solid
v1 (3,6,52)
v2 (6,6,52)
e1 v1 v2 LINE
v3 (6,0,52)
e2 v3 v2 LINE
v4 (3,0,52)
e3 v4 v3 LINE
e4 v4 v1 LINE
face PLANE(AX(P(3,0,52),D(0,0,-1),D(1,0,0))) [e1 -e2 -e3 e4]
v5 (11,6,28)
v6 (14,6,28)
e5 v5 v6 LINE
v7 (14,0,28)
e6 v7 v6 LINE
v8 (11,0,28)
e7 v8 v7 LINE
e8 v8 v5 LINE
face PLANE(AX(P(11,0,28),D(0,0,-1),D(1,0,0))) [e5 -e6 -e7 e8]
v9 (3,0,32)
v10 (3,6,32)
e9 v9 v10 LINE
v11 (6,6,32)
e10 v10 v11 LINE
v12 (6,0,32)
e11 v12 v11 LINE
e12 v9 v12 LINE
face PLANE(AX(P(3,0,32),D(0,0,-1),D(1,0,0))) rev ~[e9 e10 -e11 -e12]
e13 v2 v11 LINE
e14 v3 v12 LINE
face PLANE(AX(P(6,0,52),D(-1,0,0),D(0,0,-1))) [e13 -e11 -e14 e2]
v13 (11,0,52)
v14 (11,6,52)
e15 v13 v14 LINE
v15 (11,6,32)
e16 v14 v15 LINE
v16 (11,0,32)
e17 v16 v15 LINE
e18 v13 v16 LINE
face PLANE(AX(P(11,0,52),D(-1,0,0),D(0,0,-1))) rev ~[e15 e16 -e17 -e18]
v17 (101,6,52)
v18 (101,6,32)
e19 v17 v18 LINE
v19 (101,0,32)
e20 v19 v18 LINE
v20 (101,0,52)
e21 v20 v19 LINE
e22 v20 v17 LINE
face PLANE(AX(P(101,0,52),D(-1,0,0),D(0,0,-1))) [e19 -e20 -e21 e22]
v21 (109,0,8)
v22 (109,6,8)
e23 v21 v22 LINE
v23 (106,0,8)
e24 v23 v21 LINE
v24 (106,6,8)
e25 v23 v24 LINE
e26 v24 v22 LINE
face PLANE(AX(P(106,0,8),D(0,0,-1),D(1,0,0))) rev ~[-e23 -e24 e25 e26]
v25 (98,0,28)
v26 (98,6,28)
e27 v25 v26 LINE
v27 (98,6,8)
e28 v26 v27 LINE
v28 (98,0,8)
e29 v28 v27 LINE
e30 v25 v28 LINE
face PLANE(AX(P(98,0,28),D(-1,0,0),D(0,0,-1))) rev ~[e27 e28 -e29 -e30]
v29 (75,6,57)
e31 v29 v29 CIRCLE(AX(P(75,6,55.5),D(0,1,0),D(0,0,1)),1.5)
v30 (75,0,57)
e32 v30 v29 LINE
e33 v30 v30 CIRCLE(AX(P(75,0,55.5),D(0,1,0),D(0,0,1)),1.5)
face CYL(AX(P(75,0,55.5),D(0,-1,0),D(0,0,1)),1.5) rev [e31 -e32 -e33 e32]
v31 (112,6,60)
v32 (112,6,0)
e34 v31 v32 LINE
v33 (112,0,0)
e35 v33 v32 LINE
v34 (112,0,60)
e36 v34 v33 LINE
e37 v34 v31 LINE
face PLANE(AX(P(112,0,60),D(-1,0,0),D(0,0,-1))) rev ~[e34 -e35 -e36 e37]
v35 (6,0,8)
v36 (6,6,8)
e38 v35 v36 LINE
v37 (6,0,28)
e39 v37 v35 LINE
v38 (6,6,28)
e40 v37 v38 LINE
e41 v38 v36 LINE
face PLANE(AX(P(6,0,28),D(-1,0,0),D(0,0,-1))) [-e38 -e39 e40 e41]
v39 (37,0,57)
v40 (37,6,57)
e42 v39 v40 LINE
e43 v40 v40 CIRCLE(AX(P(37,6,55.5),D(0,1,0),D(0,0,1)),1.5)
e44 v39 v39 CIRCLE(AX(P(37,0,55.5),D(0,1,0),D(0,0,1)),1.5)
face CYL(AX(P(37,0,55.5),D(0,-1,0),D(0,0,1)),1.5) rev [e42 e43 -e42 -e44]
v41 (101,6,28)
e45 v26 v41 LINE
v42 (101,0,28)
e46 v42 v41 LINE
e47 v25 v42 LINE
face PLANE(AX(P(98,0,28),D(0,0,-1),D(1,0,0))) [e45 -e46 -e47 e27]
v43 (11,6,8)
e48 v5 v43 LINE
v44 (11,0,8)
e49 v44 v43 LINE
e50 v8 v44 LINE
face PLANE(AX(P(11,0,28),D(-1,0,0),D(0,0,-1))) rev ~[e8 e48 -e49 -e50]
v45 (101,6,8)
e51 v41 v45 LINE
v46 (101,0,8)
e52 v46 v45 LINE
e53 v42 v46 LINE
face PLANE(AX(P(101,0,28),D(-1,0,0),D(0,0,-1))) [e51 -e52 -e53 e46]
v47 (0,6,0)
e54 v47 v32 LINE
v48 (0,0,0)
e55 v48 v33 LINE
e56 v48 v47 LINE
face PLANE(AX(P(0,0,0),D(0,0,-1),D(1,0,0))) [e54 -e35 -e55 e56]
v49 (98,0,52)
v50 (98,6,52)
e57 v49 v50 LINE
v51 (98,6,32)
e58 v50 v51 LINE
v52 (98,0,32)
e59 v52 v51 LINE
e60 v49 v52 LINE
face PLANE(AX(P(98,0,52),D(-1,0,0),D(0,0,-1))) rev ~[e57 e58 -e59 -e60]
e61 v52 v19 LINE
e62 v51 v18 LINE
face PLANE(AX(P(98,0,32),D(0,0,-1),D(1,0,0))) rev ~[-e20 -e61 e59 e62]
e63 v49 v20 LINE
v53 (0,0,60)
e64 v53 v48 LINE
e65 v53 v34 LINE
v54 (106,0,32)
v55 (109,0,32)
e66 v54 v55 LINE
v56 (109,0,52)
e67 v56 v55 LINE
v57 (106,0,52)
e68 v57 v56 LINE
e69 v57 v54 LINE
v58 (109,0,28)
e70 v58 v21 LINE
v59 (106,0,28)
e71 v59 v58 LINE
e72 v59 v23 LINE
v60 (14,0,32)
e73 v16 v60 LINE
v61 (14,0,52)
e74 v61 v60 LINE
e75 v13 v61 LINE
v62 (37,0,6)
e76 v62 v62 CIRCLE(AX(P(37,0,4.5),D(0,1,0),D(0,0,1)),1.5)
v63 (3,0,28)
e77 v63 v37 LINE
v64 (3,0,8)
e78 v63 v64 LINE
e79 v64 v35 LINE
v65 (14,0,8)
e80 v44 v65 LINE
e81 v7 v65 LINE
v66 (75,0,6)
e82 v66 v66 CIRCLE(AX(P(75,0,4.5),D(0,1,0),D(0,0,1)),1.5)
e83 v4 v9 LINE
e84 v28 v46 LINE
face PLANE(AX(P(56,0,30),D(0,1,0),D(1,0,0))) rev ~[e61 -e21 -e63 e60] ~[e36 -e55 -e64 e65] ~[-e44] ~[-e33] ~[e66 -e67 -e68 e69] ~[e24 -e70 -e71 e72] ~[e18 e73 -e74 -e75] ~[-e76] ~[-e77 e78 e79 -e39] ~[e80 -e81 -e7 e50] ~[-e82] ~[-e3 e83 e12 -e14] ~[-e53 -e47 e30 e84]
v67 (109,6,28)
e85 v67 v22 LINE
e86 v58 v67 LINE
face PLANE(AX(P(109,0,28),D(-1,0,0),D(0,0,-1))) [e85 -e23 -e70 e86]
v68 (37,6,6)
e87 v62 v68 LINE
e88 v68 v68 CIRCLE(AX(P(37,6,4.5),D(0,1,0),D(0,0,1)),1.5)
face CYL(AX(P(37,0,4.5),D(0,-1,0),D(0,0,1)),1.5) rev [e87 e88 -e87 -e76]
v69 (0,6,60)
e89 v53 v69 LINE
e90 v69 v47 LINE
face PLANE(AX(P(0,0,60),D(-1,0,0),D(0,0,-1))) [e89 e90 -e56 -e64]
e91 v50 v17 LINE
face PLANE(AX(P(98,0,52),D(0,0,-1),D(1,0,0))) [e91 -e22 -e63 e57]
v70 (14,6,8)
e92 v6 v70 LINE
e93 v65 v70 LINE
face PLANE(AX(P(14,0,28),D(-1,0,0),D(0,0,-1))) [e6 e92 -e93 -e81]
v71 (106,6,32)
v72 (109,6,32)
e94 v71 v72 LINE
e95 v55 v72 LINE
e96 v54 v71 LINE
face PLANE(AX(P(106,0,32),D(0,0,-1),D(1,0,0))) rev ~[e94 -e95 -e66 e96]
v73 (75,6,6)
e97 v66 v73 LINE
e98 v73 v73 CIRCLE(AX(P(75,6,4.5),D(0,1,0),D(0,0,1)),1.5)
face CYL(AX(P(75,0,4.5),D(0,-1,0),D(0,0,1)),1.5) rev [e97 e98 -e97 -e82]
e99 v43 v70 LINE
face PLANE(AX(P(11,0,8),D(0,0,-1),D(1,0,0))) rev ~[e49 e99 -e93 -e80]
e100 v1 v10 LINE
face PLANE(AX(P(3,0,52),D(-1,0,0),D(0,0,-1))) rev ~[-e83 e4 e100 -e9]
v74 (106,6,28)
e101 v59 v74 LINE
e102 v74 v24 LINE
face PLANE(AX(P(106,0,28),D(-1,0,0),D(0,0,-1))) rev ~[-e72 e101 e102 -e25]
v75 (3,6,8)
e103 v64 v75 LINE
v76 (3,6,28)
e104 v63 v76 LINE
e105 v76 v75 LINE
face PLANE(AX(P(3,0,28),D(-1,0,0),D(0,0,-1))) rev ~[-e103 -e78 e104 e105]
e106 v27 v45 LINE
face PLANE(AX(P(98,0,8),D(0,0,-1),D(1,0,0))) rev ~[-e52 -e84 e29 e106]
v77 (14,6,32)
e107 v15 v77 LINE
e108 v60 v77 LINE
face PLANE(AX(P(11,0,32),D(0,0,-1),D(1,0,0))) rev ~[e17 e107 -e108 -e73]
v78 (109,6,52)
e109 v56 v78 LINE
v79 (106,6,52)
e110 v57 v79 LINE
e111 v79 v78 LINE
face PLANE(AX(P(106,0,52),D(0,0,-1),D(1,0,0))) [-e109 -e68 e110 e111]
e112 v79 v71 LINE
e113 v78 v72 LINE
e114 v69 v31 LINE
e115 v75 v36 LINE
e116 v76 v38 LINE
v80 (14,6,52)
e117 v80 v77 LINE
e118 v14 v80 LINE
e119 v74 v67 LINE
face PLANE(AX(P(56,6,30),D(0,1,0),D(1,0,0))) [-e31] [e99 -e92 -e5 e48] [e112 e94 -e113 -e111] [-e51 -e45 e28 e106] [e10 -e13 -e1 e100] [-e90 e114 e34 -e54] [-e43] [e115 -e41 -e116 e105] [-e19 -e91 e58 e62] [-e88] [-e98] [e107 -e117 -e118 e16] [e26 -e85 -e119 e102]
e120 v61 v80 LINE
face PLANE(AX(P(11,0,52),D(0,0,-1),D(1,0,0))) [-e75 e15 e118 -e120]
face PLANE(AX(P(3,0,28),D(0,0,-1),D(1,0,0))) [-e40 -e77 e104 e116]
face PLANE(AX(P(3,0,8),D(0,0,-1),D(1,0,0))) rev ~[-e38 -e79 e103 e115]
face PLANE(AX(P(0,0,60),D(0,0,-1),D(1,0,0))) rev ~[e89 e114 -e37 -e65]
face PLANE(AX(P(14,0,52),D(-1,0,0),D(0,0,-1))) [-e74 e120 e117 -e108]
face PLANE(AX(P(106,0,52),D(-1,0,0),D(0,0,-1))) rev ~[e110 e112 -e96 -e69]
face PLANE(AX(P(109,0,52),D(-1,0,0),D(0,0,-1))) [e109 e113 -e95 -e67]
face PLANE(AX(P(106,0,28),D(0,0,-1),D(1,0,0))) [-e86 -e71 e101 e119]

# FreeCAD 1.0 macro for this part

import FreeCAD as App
import Part
import Sketcher
Q = App.Units.Quantity

doc = App.newDocument("Part")
body = doc.addObject("PartDesign::Body", "Body")

# Sketch on XZ plane
sketch1 = doc.addObject("Sketcher::SketchObject", "Sketch")
body.addObject(sketch1)
sketch1.AttachmentSupport = (doc.XZ_Plane, [""])
sketch1.MapMode = "FlatFace"
sketch1.addGeometry(Part.LineSegment(App.Vector(0, 0, 0), App.Vector(0, 60, 0)), False)
sketch1.addGeometry(Part.LineSegment(App.Vector(0, 60, 0), App.Vector(112, 60, 0)), False)
sketch1.addGeometry(Part.LineSegment(App.Vector(112, 60, 0), App.Vector(112, 0, 0)), False)
sketch1.addGeometry(Part.LineSegment(App.Vector(112, 0, 0), App.Vector(0, 0, 0)), False)
sketch1.addGeometry(Part.Circle(App.Vector(37, 55.5, 0), App.Vector(0, 0, 1), 1.5), False)
sketch1.addGeometry(Part.LineSegment(App.Vector(6, 52, 0), App.Vector(3, 52, 0)), False)
sketch1.addGeometry(Part.LineSegment(App.Vector(3, 52, 0), App.Vector(3, 32, 0)), False)
sketch1.addGeometry(Part.LineSegment(App.Vector(3, 32, 0), App.Vector(6, 32, 0)), False)
sketch1.addGeometry(Part.LineSegment(App.Vector(6, 32, 0), App.Vector(6, 52, 0)), False)
sketch1.addGeometry(Part.LineSegment(App.Vector(14, 52, 0), App.Vector(11, 52, 0)), False)
sketch1.addGeometry(Part.LineSegment(App.Vector(11, 52, 0), App.Vector(11, 32, 0)), False)
sketch1.addGeometry(Part.LineSegment(App.Vector(11, 32, 0), App.Vector(14, 32, 0)), False)
sketch1.addGeometry(Part.LineSegment(App.Vector(14, 32, 0), App.Vector(14, 52, 0)), False)
sketch1.addGeometry(Part.Circle(App.Vector(75, 55.5, 0), App.Vector(0, 0, 1), 1.5), False)
sketch1.addGeometry(Part.LineSegment(App.Vector(101, 52, 0), App.Vector(98, 52, 0)), False)
sketch1.addGeometry(Part.LineSegment(App.Vector(98, 52, 0), App.Vector(98, 32, 0)), False)
sketch1.addGeometry(Part.LineSegment(App.Vector(98, 32, 0), App.Vector(101, 32, 0)), False)
sketch1.addGeometry(Part.LineSegment(App.Vector(101, 32, 0), App.Vector(101, 52, 0)), False)
sketch1.addGeometry(Part.LineSegment(App.Vector(109, 52, 0), App.Vector(106, 52, 0)), False)
sketch1.addGeometry(Part.LineSegment(App.Vector(106, 52, 0), App.Vector(106, 32, 0)), False)
sketch1.addGeometry(Part.LineSegment(App.Vector(106, 32, 0), App.Vector(109, 32, 0)), False)
sketch1.addGeometry(Part.LineSegment(App.Vector(109, 32, 0), App.Vector(109, 52, 0)), False)
sketch1.addGeometry(Part.LineSegment(App.Vector(6, 28, 0), App.Vector(3, 28, 0)), False)
sketch1.addGeometry(Part.LineSegment(App.Vector(3, 28, 0), App.Vector(3, 8, 0)), False)
sketch1.addGeometry(Part.LineSegment(App.Vector(3, 8, 0), App.Vector(6, 8, 0)), False)
sketch1.addGeometry(Part.LineSegment(App.Vector(6, 8, 0), App.Vector(6, 28, 0)), False)
sketch1.addGeometry(Part.LineSegment(App.Vector(14, 28, 0), App.Vector(11, 28, 0)), False)
sketch1.addGeometry(Part.LineSegment(App.Vector(11, 28, 0), App.Vector(11, 8, 0)), False)
sketch1.addGeometry(Part.LineSegment(App.Vector(11, 8, 0), App.Vector(14, 8, 0)), False)
sketch1.addGeometry(Part.LineSegment(App.Vector(14, 8, 0), App.Vector(14, 28, 0)), False)
sketch1.addGeometry(Part.Circle(App.Vector(37, 4.5, 0), App.Vector(0, 0, 1), 1.5), False)
sketch1.addGeometry(Part.LineSegment(App.Vector(101, 28, 0), App.Vector(98, 28, 0)), False)
sketch1.addGeometry(Part.LineSegment(App.Vector(98, 28, 0), App.Vector(98, 8, 0)), False)
sketch1.addGeometry(Part.LineSegment(App.Vector(98, 8, 0), App.Vector(101, 8, 0)), False)
sketch1.addGeometry(Part.LineSegment(App.Vector(101, 8, 0), App.Vector(101, 28, 0)), False)
sketch1.addGeometry(Part.LineSegment(App.Vector(109, 28, 0), App.Vector(106, 28, 0)), False)
sketch1.addGeometry(Part.LineSegment(App.Vector(106, 28, 0), App.Vector(106, 8, 0)), False)
sketch1.addGeometry(Part.LineSegment(App.Vector(106, 8, 0), App.Vector(109, 8, 0)), False)
sketch1.addGeometry(Part.LineSegment(App.Vector(109, 8, 0), App.Vector(109, 28, 0)), False)
sketch1.addGeometry(Part.Circle(App.Vector(75, 4.5, 0), App.Vector(0, 0, 1), 1.5), False)
sketch1.addConstraint(Sketcher.Constraint("Coincident", 0, 2, 1, 1))
sketch1.addConstraint(Sketcher.Constraint("Coincident", 1, 2, 2, 1))
sketch1.addConstraint(Sketcher.Constraint("Coincident", 2, 2, 3, 1))
sketch1.addConstraint(Sketcher.Constraint("Coincident", 3, 2, 0, 1))
sketch1.addConstraint(Sketcher.Constraint("Coincident", 5, 2, 6, 1))
sketch1.addConstraint(Sketcher.Constraint("Coincident", 6, 2, 7, 1))
sketch1.addConstraint(Sketcher.Constraint("Coincident", 7, 2, 8, 1))
sketch1.addConstraint(Sketcher.Constraint("Coincident", 8, 2, 5, 1))
sketch1.addConstraint(Sketcher.Constraint("Coincident", 9, 2, 10, 1))
sketch1.addConstraint(Sketcher.Constraint("Coincident", 10, 2, 11, 1))
sketch1.addConstraint(Sketcher.Constraint("Coincident", 11, 2, 12, 1))
sketch1.addConstraint(Sketcher.Constraint("Coincident", 12, 2, 9, 1))
sketch1.addConstraint(Sketcher.Constraint("Coincident", 14, 2, 15, 1))
sketch1.addConstraint(Sketcher.Constraint("Coincident", 15, 2, 16, 1))
sketch1.addConstraint(Sketcher.Constraint("Coincident", 16, 2, 17, 1))
sketch1.addConstraint(Sketcher.Constraint("Coincident", 17, 2, 14, 1))
sketch1.addConstraint(Sketcher.Constraint("Coincident", 18, 2, 19, 1))
sketch1.addConstraint(Sketcher.Constraint("Coincident", 19, 2, 20, 1))
sketch1.addConstraint(Sketcher.Constraint("Coincident", 20, 2, 21, 1))
sketch1.addConstraint(Sketcher.Constraint("Coincident", 21, 2, 18, 1))
sketch1.addConstraint(Sketcher.Constraint("Coincident", 22, 2, 23, 1))
sketch1.addConstraint(Sketcher.Constraint("Coincident", 23, 2, 24, 1))
sketch1.addConstraint(Sketcher.Constraint("Coincident", 24, 2, 25, 1))
sketch1.addConstraint(Sketcher.Constraint("Coincident", 25, 2, 22, 1))
sketch1.addConstraint(Sketcher.Constraint("Coincident", 26, 2, 27, 1))
sketch1.addConstraint(Sketcher.Constraint("Coincident", 27, 2, 28, 1))
sketch1.addConstraint(Sketcher.Constraint("Coincident", 28, 2, 29, 1))
sketch1.addConstraint(Sketcher.Constraint("Coincident", 29, 2, 26, 1))
sketch1.addConstraint(Sketcher.Constraint("Coincident", 31, 2, 32, 1))
sketch1.addConstraint(Sketcher.Constraint("Coincident", 32, 2, 33, 1))
sketch1.addConstraint(Sketcher.Constraint("Coincident", 33, 2, 34, 1))
sketch1.addConstraint(Sketcher.Constraint("Coincident", 34, 2, 31, 1))
sketch1.addConstraint(Sketcher.Constraint("Coincident", 35, 2, 36, 1))
sketch1.addConstraint(Sketcher.Constraint("Coincident", 36, 2, 37, 1))
sketch1.addConstraint(Sketcher.Constraint("Coincident", 37, 2, 38, 1))
sketch1.addConstraint(Sketcher.Constraint("Coincident", 38, 2, 35, 1))
sketch1.addConstraint(Sketcher.Constraint("Vertical", 0))
sketch1.addConstraint(Sketcher.Constraint("Horizontal", 1))
sketch1.addConstraint(Sketcher.Constraint("Vertical", 2))
sketch1.addConstraint(Sketcher.Constraint("Horizontal", 3))
sketch1.addConstraint(Sketcher.Constraint("Horizontal", 5))
sketch1.addConstraint(Sketcher.Constraint("Vertical", 6))
sketch1.addConstraint(Sketcher.Constraint("Horizontal", 7))
sketch1.addConstraint(Sketcher.Constraint("Vertical", 8))
sketch1.addConstraint(Sketcher.Constraint("Horizontal", 9))
sketch1.addConstraint(Sketcher.Constraint("Vertical", 10))
sketch1.addConstraint(Sketcher.Constraint("Horizontal", 11))
sketch1.addConstraint(Sketcher.Constraint("Vertical", 12))
sketch1.addConstraint(Sketcher.Constraint("Horizontal", 14))
sketch1.addConstraint(Sketcher.Constraint("Vertical", 15))
sketch1.addConstraint(Sketcher.Constraint("Horizontal", 16))
sketch1.addConstraint(Sketcher.Constraint("Vertical", 17))
sketch1.addConstraint(Sketcher.Constraint("Horizontal", 18))
sketch1.addConstraint(Sketcher.Constraint("Vertical", 19))
sketch1.addConstraint(Sketcher.Constraint("Horizontal", 20))
sketch1.addConstraint(Sketcher.Constraint("Vertical", 21))
sketch1.addConstraint(Sketcher.Constraint("Horizontal", 22))
sketch1.addConstraint(Sketcher.Constraint("Vertical", 23))
sketch1.addConstraint(Sketcher.Constraint("Horizontal", 24))
sketch1.addConstraint(Sketcher.Constraint("Vertical", 25))
sketch1.addConstraint(Sketcher.Constraint("Horizontal", 26))
sketch1.addConstraint(Sketcher.Constraint("Vertical", 27))
sketch1.addConstraint(Sketcher.Constraint("Horizontal", 28))
sketch1.addConstraint(Sketcher.Constraint("Vertical", 29))
sketch1.addConstraint(Sketcher.Constraint("Horizontal", 31))
sketch1.addConstraint(Sketcher.Constraint("Vertical", 32))
sketch1.addConstraint(Sketcher.Constraint("Horizontal", 33))
sketch1.addConstraint(Sketcher.Constraint("Vertical", 34))
sketch1.addConstraint(Sketcher.Constraint("Horizontal", 35))
sketch1.addConstraint(Sketcher.Constraint("Vertical", 36))
sketch1.addConstraint(Sketcher.Constraint("Horizontal", 37))
sketch1.addConstraint(Sketcher.Constraint("Vertical", 38))
sketch1.addConstraint(Sketcher.Constraint("Coincident", 3, 2, -1, 1))
sketch1.addConstraint(Sketcher.Constraint("Equal", 4, 13))
sketch1.addConstraint(Sketcher.Constraint("Equal", 13, 30))
sketch1.addConstraint(Sketcher.Constraint("Equal", 30, 39))
sketch1.addConstraint(Sketcher.Constraint("Horizontal", 4, 3, 13, 3))
sketch1.addConstraint(Sketcher.Constraint("Horizontal", 30, 3, 39, 3))
sketch1.addConstraint(Sketcher.Constraint("Horizontal", 8, 2, 9, 2))
sketch1.addConstraint(Sketcher.Constraint("Horizontal", 7, 2, 10, 2))
sketch1.addConstraint(Sketcher.Constraint("Horizontal", 12, 2, 14, 2))
sketch1.addConstraint(Sketcher.Constraint("Horizontal", 11, 2, 15, 2))
sketch1.addConstraint(Sketcher.Constraint("Horizontal", 17, 2, 18, 2))
sketch1.addConstraint(Sketcher.Constraint("Horizontal", 16, 2, 19, 2))
sketch1.addConstraint(Sketcher.Constraint("Horizontal", 25, 2, 26, 2))
sketch1.addConstraint(Sketcher.Constraint("Horizontal", 24, 2, 27, 2))
sketch1.addConstraint(Sketcher.Constraint("Horizontal", 29, 2, 31, 2))
sketch1.addConstraint(Sketcher.Constraint("Horizontal", 28, 2, 32, 2))
sketch1.addConstraint(Sketcher.Constraint("Horizontal", 34, 2, 35, 2))
sketch1.addConstraint(Sketcher.Constraint("Horizontal", 33, 2, 36, 2))
sketch1.addConstraint(Sketcher.Constraint("Vertical", 4, 3, 30, 3))
sketch1.addConstraint(Sketcher.Constraint("Vertical", 13, 3, 39, 3))
sketch1.addConstraint(Sketcher.Constraint("Vertical", 6, 2, 22, 2))
sketch1.addConstraint(Sketcher.Constraint("Vertical", 8, 2, 24, 2))
sketch1.addConstraint(Sketcher.Constraint("Vertical", 10, 2, 26, 2))
sketch1.addConstraint(Sketcher.Constraint("Vertical", 12, 2, 28, 2))
sketch1.addConstraint(Sketcher.Constraint("Vertical", 15, 2, 31, 2))
sketch1.addConstraint(Sketcher.Constraint("Vertical", 17, 2, 33, 2))
sketch1.addConstraint(Sketcher.Constraint("Vertical", 19, 2, 35, 2))
sketch1.addConstraint(Sketcher.Constraint("Vertical", 21, 2, 37, 2))
sketch1.addConstraint(Sketcher.Constraint("Equal", 7, 9))
sketch1.addConstraint(Sketcher.Constraint("Equal", 11, 14))
sketch1.addConstraint(Sketcher.Constraint("Equal", 16, 18))
sketch1.addConstraint(Sketcher.Constraint("Equal", 21, 23))
sketch1.addConstraint(Sketcher.Constraint("Diameter", 4, Q("3 mm")))
sketch1.addConstraint(Sketcher.Constraint("DistanceX", 1, 1, 1, 2, Q("112 mm")))
sketch1.addConstraint(Sketcher.Constraint("DistanceX", 5, 2, 5, 1, Q("3 mm")))
sketch1.addConstraint(Sketcher.Constraint("DistanceY", 0, 1, 0, 2, Q("60 mm")))
sketch1.addConstraint(Sketcher.Constraint("DistanceY", 6, 2, 6, 1, Q("20 mm")))
sketch1.addConstraint(Sketcher.Constraint("DistanceX", -1, 1, 4, 3, Q("37 mm")))
sketch1.addConstraint(Sketcher.Constraint("DistanceX", -1, 1, 13, 3, Q("75 mm")))
sketch1.addConstraint(Sketcher.Constraint("DistanceX", -1, 1, 5, 2, Q("3 mm")))
sketch1.addConstraint(Sketcher.Constraint("DistanceY", -1, 1, 5, 2, Q("52 mm")))
sketch1.addConstraint(Sketcher.Constraint("DistanceX", -1, 1, 9, 2, Q("11 mm")))
sketch1.addConstraint(Sketcher.Constraint("DistanceX", -1, 1, 14, 2, Q("98 mm")))
sketch1.addConstraint(Sketcher.Constraint("DistanceX", -1, 1, 18, 2, Q("106 mm")))
sketch1.addConstraint(Sketcher.Constraint("DistanceY", -1, 1, 22, 2, Q("28 mm")))
sketch1.addConstraint(Sketcher.Constraint("DistanceY", 30, 3, 4, 3, Q("51 mm")))
sketch1.addConstraint(Sketcher.Constraint("DistanceY", -1, 1, 4, 3, Q("55.5 mm")))
pad1 = doc.addObject("PartDesign::Pad", "Pad")
body.addObject(pad1)
pad1.Profile = sketch1
pad1.Length = 6
pad1.Reversed = True

doc.recompute()
